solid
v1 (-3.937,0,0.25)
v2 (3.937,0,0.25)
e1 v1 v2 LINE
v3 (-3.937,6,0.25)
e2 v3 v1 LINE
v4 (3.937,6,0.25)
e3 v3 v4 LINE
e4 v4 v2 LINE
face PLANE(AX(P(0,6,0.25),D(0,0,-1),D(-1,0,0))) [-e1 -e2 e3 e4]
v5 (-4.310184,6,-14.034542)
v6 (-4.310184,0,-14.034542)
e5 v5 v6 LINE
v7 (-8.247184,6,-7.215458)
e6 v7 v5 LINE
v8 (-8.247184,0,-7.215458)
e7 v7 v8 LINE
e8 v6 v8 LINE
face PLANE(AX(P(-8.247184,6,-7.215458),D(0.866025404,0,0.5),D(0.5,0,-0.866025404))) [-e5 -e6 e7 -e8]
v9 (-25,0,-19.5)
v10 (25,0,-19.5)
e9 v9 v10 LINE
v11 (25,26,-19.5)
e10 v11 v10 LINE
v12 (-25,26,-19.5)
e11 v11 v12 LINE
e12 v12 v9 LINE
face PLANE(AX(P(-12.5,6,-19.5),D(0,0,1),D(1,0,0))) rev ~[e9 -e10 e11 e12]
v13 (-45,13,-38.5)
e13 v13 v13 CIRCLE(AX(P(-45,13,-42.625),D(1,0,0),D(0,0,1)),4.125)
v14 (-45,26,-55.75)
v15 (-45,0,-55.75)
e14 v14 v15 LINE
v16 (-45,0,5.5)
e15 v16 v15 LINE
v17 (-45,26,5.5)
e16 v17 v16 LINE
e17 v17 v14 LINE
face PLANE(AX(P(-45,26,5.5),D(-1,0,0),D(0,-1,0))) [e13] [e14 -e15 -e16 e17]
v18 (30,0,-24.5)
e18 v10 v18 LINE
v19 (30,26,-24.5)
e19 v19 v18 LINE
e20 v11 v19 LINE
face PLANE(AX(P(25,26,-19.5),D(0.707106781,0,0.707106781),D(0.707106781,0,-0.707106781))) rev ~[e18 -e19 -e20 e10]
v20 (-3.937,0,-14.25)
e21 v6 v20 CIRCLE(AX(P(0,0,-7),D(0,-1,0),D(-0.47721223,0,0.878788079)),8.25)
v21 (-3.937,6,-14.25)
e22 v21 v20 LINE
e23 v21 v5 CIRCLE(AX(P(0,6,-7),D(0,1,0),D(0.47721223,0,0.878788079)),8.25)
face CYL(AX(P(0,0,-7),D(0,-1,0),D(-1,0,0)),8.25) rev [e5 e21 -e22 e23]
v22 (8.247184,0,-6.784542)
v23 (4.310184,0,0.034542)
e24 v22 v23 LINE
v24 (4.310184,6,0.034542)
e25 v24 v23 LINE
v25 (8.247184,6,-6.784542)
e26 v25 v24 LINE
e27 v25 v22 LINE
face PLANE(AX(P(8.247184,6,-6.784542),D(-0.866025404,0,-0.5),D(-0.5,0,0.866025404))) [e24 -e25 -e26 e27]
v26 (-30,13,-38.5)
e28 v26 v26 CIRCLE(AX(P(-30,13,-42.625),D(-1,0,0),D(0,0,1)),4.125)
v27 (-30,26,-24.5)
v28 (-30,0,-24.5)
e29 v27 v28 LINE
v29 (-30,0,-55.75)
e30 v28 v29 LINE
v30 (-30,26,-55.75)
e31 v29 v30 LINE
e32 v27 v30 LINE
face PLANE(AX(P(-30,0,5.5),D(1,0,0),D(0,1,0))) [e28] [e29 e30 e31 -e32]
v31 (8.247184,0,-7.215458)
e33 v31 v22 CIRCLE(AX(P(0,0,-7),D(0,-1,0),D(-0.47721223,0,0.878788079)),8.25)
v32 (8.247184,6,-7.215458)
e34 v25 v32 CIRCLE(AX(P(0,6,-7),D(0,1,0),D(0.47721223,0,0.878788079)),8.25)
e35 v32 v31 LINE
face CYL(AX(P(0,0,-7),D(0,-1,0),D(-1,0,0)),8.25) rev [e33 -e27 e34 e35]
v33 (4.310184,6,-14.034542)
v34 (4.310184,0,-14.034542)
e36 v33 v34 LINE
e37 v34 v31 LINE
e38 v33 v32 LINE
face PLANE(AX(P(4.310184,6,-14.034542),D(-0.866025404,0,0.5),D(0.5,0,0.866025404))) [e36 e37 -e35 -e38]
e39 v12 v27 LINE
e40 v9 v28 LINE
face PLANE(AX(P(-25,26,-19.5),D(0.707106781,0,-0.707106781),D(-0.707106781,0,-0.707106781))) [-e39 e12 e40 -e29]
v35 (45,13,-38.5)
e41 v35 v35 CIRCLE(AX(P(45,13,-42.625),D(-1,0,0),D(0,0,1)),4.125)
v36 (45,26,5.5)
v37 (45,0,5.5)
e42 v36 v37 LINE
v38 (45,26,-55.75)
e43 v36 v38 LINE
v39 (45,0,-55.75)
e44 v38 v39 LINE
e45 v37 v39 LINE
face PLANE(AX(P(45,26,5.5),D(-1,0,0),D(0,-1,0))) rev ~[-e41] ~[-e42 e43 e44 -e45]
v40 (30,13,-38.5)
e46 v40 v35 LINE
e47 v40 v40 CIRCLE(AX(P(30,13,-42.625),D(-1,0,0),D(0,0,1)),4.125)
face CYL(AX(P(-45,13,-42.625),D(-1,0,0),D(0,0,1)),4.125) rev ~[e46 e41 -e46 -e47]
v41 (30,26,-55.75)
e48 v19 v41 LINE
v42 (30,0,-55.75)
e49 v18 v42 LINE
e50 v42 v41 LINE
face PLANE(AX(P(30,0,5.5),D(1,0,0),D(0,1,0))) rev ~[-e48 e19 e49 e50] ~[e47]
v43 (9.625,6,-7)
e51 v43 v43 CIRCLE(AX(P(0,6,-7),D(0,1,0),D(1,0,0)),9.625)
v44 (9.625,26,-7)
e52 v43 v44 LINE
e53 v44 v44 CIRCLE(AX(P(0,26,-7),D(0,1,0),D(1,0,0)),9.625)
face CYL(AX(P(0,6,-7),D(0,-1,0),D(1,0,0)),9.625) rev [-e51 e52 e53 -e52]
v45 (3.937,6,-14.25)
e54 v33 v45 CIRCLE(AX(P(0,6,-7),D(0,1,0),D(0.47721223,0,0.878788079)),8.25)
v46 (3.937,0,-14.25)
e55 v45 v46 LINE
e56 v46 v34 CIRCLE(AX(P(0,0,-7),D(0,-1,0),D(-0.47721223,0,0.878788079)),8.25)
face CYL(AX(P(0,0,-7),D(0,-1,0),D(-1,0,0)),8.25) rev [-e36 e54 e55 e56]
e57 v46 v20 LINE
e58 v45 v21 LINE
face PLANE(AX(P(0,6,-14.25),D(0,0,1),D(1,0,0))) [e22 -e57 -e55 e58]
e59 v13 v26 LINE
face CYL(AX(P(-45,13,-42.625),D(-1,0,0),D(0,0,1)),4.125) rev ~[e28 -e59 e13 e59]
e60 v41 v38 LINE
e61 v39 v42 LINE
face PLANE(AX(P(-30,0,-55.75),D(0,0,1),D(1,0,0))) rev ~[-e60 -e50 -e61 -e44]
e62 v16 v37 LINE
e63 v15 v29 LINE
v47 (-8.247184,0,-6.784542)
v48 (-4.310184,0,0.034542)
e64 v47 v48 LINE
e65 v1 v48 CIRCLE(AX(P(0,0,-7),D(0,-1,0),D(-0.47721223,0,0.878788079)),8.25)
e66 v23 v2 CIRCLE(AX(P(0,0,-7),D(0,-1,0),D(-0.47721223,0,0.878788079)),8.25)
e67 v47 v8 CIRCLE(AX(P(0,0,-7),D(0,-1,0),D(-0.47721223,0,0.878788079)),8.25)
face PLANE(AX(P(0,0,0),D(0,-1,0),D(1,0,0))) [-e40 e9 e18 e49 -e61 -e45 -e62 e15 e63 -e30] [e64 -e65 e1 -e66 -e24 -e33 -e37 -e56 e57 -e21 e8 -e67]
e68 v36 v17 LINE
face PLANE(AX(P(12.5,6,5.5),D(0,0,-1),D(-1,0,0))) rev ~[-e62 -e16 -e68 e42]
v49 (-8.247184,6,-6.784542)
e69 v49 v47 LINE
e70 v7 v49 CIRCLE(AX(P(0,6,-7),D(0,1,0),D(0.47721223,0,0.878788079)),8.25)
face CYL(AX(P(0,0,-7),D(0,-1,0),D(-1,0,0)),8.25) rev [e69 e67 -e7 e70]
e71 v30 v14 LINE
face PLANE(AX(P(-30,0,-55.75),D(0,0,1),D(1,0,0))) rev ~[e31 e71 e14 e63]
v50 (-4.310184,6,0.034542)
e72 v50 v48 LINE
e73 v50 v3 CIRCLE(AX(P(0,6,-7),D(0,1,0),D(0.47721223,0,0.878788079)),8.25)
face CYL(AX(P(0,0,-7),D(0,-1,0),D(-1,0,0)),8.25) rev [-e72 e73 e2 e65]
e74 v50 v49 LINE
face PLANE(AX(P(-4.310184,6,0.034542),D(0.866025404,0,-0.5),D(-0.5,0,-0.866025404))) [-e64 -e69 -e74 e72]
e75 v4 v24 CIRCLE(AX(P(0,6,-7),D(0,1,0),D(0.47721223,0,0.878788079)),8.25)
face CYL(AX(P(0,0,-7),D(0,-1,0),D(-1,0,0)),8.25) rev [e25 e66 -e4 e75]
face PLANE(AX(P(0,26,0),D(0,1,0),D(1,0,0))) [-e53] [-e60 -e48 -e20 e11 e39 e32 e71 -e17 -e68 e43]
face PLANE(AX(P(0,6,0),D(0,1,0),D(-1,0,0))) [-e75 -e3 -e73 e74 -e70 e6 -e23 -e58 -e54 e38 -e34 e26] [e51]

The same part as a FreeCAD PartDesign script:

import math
import FreeCAD as App
import Part
import Sketcher
Q = App.Units.Quantity

doc = App.newDocument("Part")
body = doc.addObject("PartDesign::Body", "Body")

sketch1 = doc.addObject("Sketcher::SketchObject", "Sketch")
body.addObject(sketch1)
sketch1.AttachmentSupport = (doc.XZ_Plane, [""])
sketch1.MapMode = "FlatFace"
sketch1.addGeometry([
    Part.Circle(App.Vector(0, -7, 0), App.Vector(0, 0, 1), 10),
    Part.Circle(App.Vector(0, -7, 0), App.Vector(0, 0, 1), 8),
], False)
sketch1.addConstraint([
    Sketcher.Constraint("Coincident", 1, 3, 0, 3),
    Sketcher.Constraint("PointOnObject", 0, 3, -2),
    Sketcher.Constraint("Diameter", 0, Q("21 mm")),
    Sketcher.Constraint("Diameter", 1, Q("16.5 mm")),
    Sketcher.Constraint("DistanceY", 0, 3, -1, 1, Q("7 mm")),
])
pad1 = doc.addObject("PartDesign::Pad", "Pad")
body.addObject(pad1)
pad1.Profile = sketch1
pad1.Length = 6
pad1.Reversed = True

sketch2 = doc.addObject("Sketcher::SketchObject", "Sketch001")
body.addObject(sketch2)
sketch2.AttachmentSupport = (doc.XZ_Plane, [""])
sketch2.MapMode = "FlatFace"
sketch2.AttachmentOffset = App.Placement(App.Vector(0, 0, -6), App.Rotation())
sketch2.addGeometry([
    Part.LineSegment(App.Vector(0, 4, 0), App.Vector(10, 4, 0)),
    Part.LineSegment(App.Vector(10, 4, 0), App.Vector(10, -7, 0)),
    Part.ArcOfCircle(Part.Circle(App.Vector(0, -7, 0), App.Vector(0, 0, 1), 10), math.radians(0), math.radians(90)),
    Part.LineSegment(App.Vector(-10, 4, 0), App.Vector(0, 4, 0)),
    Part.ArcOfCircle(Part.Circle(App.Vector(0, -7, 0), App.Vector(0, 0, 1), 10), math.radians(90), math.radians(180)),
    Part.LineSegment(App.Vector(-10, -7, 0), App.Vector(-10, 4, 0)),
    Part.ArcOfCircle(Part.Circle(App.Vector(0, -7, 0), App.Vector(0, 0, 1), 10), math.radians(-90), math.radians(0)),
    Part.LineSegment(App.Vector(10, -7, 0), App.Vector(10, -18, 0)),
    Part.LineSegment(App.Vector(10, -18, 0), App.Vector(0, -18, 0)),
    Part.LineSegment(App.Vector(-10, -18, 0), App.Vector(-10, -7, 0)),
    Part.ArcOfCircle(Part.Circle(App.Vector(0, -7, 0), App.Vector(0, 0, 1), 10), math.radians(-180), math.radians(-90)),
    Part.LineSegment(App.Vector(0, -18, 0), App.Vector(-10, -18, 0)),
], False)
sketch2.addConstraint([
    Sketcher.Constraint("Coincident", 0, 2, 1, 1),
    Sketcher.Constraint("Tangent", 1, 2, 2, 1),
    Sketcher.Constraint("Tangent", 2, 2, 0, 1),
    Sketcher.Constraint("Tangent", 3, 2, 4, 1),
    Sketcher.Constraint("Tangent", 4, 2, 5, 1),
    Sketcher.Constraint("Coincident", 5, 2, 3, 1),
    Sketcher.Constraint("Tangent", 6, 2, 7, 1),
    Sketcher.Constraint("Coincident", 7, 2, 8, 1),
    Sketcher.Constraint("Tangent", 8, 2, 6, 1),
    Sketcher.Constraint("Tangent", 9, 2, 10, 1),
    Sketcher.Constraint("Tangent", 10, 2, 11, 1),
    Sketcher.Constraint("Coincident", 11, 2, 9, 1),
    Sketcher.Constraint("Horizontal", 0),
    Sketcher.Constraint("Vertical", 1),
    Sketcher.Constraint("Horizontal", 3),
    Sketcher.Constraint("Vertical", 5),
    Sketcher.Constraint("Vertical", 7),
    Sketcher.Constraint("Horizontal", 8),
    Sketcher.Constraint("Vertical", 9),
    Sketcher.Constraint("Horizontal", 11),
    Sketcher.Constraint("Coincident", 4, 3, 2, 3),
    Sketcher.Constraint("Coincident", 6, 3, 2, 3),
    Sketcher.Constraint("Coincident", 10, 3, 2, 3),
    Sketcher.Constraint("Equal", 2, 4),
    Sketcher.Constraint("Equal", 4, 6),
    Sketcher.Constraint("Equal", 6, 10),
    Sketcher.Constraint("PointOnObject", 2, 3, -2),
    Sketcher.Constraint("Radius", 2, Q("10.5 mm")),
    Sketcher.Constraint("DistanceY", 2, 3, -1, 1, Q("7 mm")),
])
pad2 = doc.addObject("PartDesign::Pad", "Pad001")
body.addObject(pad2)
pad2.Profile = sketch2
pad2.Length = 6

sketch3 = doc.addObject("Sketcher::SketchObject", "Sketch002")
body.addObject(sketch3)
sketch3.AttachmentSupport = (doc.XZ_Plane, [""])
sketch3.MapMode = "FlatFace"
sketch3.AttachmentOffset = App.Placement(App.Vector(0, 0, -6), App.Rotation())
sketch3.addGeometry([
    Part.LineSegment(App.Vector(4, 0, 0), App.Vector(-4, 0, 0)),
    Part.ArcOfCircle(Part.Circle(App.Vector(0, -7, 0), App.Vector(0, 0, 1), 8), math.radians(61), math.radians(119)),
], False)
sketch3.addConstraint([
    Sketcher.Constraint("Coincident", 0, 1, 1, 1),
    Sketcher.Constraint("Coincident", 1, 2, 0, 2),
    Sketcher.Constraint("Horizontal", 0),
    Sketcher.Constraint("PointOnObject", 1, 3, -2),
    Sketcher.Constraint("Radius", 1, Q("8.25 mm")),
    Sketcher.Constraint("DistanceY", 1, 3, 0, 1, Q("7.25 mm")),
    Sketcher.Constraint("DistanceY", 1, 3, -1, 1, Q("7 mm")),
])
pad3 = doc.addObject("PartDesign::Pad", "Pad002")
body.addObject(pad3)
pad3.Profile = sketch3
pad3.Length = 6
doc.recompute()

datumline = doc.addObject("PartDesign::Line", "DatumLine")
body.addObject(datumline)
datumline.Placement = App.Placement(App.Vector(0, 0, -7), App.Rotation(App.Vector(0, 0, 1), App.Vector(0, 1, 0)))
polarpattern = doc.addObject("PartDesign::PolarPattern", "PolarPattern")
body.addObject(polarpattern)
polarpattern.Originals = [pad3]
polarpattern.Axis = (datumline, [""])
polarpattern.Angle = 360
polarpattern.Occurrences = 6
body.Tip = polarpattern

sketch4 = doc.addObject("Sketcher::SketchObject", "Sketch003")
body.addObject(sketch4)
sketch4.AttachmentSupport = (doc.XZ_Plane, [""])
sketch4.MapMode = "FlatFace"
sketch4.AttachmentOffset = App.Placement(App.Vector(0, 0, -6), App.Rotation())
sketch4.addGeometry([
    Part.LineSegment(App.Vector(12, 6, 0), App.Vector(12, -20, 0)),
    Part.LineSegment(App.Vector(12, -20, 0), App.Vector(-12, -20, 0)),
    Part.LineSegment(App.Vector(-12, -20, 0), App.Vector(-12, 6, 0)),
    Part.LineSegment(App.Vector(-12, 6, 0), App.Vector(12, 6, 0)),
    Part.Circle(App.Vector(0, -7, 0), App.Vector(0, 0, 1), 10),
], False)
sketch4.addConstraint([
    Sketcher.Constraint("Coincident", 0, 2, 1, 1),
    Sketcher.Constraint("Coincident", 1, 2, 2, 1),
    Sketcher.Constraint("Coincident", 2, 2, 3, 1),
    Sketcher.Constraint("Coincident", 3, 2, 0, 1),
    Sketcher.Constraint("Vertical", 0),
    Sketcher.Constraint("Horizontal", 1),
    Sketcher.Constraint("Vertical", 2),
    Sketcher.Constraint("Horizontal", 3),
    Sketcher.Constraint("PointOnObject", 4, 3, -2),
    Sketcher.Constraint("Equal", 3, 0),
    Sketcher.Constraint("Diameter", 4, Q("19.25 mm")),
    Sketcher.Constraint("DistanceX", 1, 2, 1, 1, Q("25 mm")),
    Sketcher.Constraint("DistanceY", 4, 3, -1, 1, Q("7 mm")),
    Sketcher.Constraint("DistanceX", -1, 1, 0, 2, Q("12.5 mm")),
    Sketcher.Constraint("DistanceY", 0, 2, -1, 1, Q("19.5 mm")),
])
pad4 = doc.addObject("PartDesign::Pad", "Pad003")
body.addObject(pad4)
pad4.Profile = sketch4
pad4.Length = 20
pad4.Reversed = True

sketch5 = doc.addObject("Sketcher::SketchObject", "Sketch004")
body.addObject(sketch5)
sketch5.AttachmentSupport = (doc.XZ_Plane, [""])
sketch5.MapMode = "FlatFace"
sketch5.AttachmentOffset = App.Placement(App.Vector(0, 0, -6), App.Rotation())
sketch5.addGeometry([
    Part.LineSegment(App.Vector(-12, 6, 0), App.Vector(-12, -20, 0)),
    Part.LineSegment(App.Vector(-12, -20, 0), App.Vector(12, -20, 0)),
    Part.LineSegment(App.Vector(12, -20, 0), App.Vector(12, 6, 0)),
    Part.LineSegment(App.Vector(12, 6, 0), App.Vector(-12, 6, 0)),
    Part.LineSegment(App.Vector(10, -18, 0), App.Vector(-10, -18, 0)),
    Part.LineSegment(App.Vector(-10, -18, 0), App.Vector(-10, 4, 0)),
    Part.LineSegment(App.Vector(-10, 4, 0), App.Vector(10, 4, 0)),
    Part.LineSegment(App.Vector(10, 4, 0), App.Vector(10, -18, 0)),
], False)
sketch5.addConstraint([
    Sketcher.Constraint("Coincident", 0, 2, 1, 1),
    Sketcher.Constraint("Coincident", 1, 2, 2, 1),
    Sketcher.Constraint("Coincident", 2, 2, 3, 1),
    Sketcher.Constraint("Coincident", 3, 2, 0, 1),
    Sketcher.Constraint("Coincident", 4, 2, 5, 1),
    Sketcher.Constraint("Coincident", 5, 2, 6, 1),
    Sketcher.Constraint("Coincident", 6, 2, 7, 1),
    Sketcher.Constraint("Coincident", 7, 2, 4, 1),
    Sketcher.Constraint("Vertical", 0),
    Sketcher.Constraint("Horizontal", 1),
    Sketcher.Constraint("Vertical", 2),
    Sketcher.Constraint("Horizontal", 3),
    Sketcher.Constraint("Horizontal", 4),
    Sketcher.Constraint("Vertical", 5),
    Sketcher.Constraint("Horizontal", 6),
    Sketcher.Constraint("Vertical", 7),
    Sketcher.Constraint("Equal", 3, 0),
    Sketcher.Constraint("Equal", 6, 5),
    Sketcher.Constraint("DistanceX", 1, 1, 1, 2, Q("25 mm")),
    Sketcher.Constraint("DistanceX", 4, 2, 4, 1, Q("21 mm")),
    Sketcher.Constraint("DistanceX", 0, 2, 4, 2, Q("2 mm")),
    Sketcher.Constraint("DistanceY", 0, 2, 4, 2, Q("2 mm")),
    Sketcher.Constraint("DistanceX", 0, 2, -1, 1, Q("12.5 mm")),
    Sketcher.Constraint("DistanceY", 0, 2, -1, 1, Q("19.5 mm")),
])
pad5 = doc.addObject("PartDesign::Pad", "Pad004")
body.addObject(pad5)
pad5.Profile = sketch5
pad5.Length = 6

sketch6 = doc.addObject("Sketcher::SketchObject", "Sketch005")
body.addObject(sketch6)
sketch6.AttachmentSupport = (doc.XY_Plane, [""])
sketch6.MapMode = "FlatFace"
sketch6.AttachmentOffset = App.Placement(App.Vector(0, 0, 5.5), App.Rotation())
sketch6.addGeometry([
    Part.LineSegment(App.Vector(30, 26, 0), App.Vector(12, 26, 0)),
    Part.LineSegment(App.Vector(12, 26, 0), App.Vector(12, 0, 0)),
    Part.LineSegment(App.Vector(12, 0, 0), App.Vector(30, 0, 0)),
    Part.LineSegment(App.Vector(30, 0, 0), App.Vector(30, 26, 0)),
    Part.LineSegment(App.Vector(-12, 0, 0), App.Vector(-12, 26, 0)),
    Part.LineSegment(App.Vector(-12, 26, 0), App.Vector(-30, 26, 0)),
    Part.LineSegment(App.Vector(-30, 26, 0), App.Vector(-30, 0, 0)),
    Part.LineSegment(App.Vector(-30, 0, 0), App.Vector(-12, 0, 0)),
], False)
sketch6.addConstraint([
    Sketcher.Constraint("Coincident", 0, 2, 1, 1),
    Sketcher.Constraint("Coincident", 1, 2, 2, 1),
    Sketcher.Constraint("Coincident", 2, 2, 3, 1),
    Sketcher.Constraint("Coincident", 3, 2, 0, 1),
    Sketcher.Constraint("Coincident", 4, 2, 5, 1),
    Sketcher.Constraint("Coincident", 5, 2, 6, 1),
    Sketcher.Constraint("Coincident", 6, 2, 7, 1),
    Sketcher.Constraint("Coincident", 7, 2, 4, 1),
    Sketcher.Constraint("Horizontal", 0),
    Sketcher.Constraint("Vertical", 1),
    Sketcher.Constraint("Horizontal", 2),
    Sketcher.Constraint("Vertical", 3),
    Sketcher.Constraint("Vertical", 4),
    Sketcher.Constraint("Horizontal", 5),
    Sketcher.Constraint("Vertical", 6),
    Sketcher.Constraint("Horizontal", 7),
    Sketcher.Constraint("Symmetric", 2, 2, 6, 2, -1, 1),
    Sketcher.Constraint("Symmetric", 0, 2, 4, 2, -2),
    Sketcher.Constraint("PointOnObject", 1, 2, -1),
    Sketcher.Constraint("DistanceX", 0, 2, 0, 1, Q("17.5 mm")),
    Sketcher.Constraint("DistanceY", 1, 2, 1, 1, Q("26 mm")),
    Sketcher.Constraint("DistanceX", -1, 1, 2, 2, Q("30 mm")),
])
pad6 = doc.addObject("PartDesign::Pad", "Pad005")
body.addObject(pad6)
pad6.Profile = sketch6
pad6.Length = 25
pad6.Reversed = True

sketch7 = doc.addObject("Sketcher::SketchObject", "Sketch006")
body.addObject(sketch7)
sketch7.AttachmentSupport = (doc.XY_Plane, [""])
sketch7.MapMode = "FlatFace"
sketch7.AttachmentOffset = App.Placement(App.Vector(0, 0, 5.5), App.Rotation())
sketch7.addGeometry([
    Part.LineSegment(App.Vector(-30, 0, 0), App.Vector(-30, 26, 0)),
    Part.LineSegment(App.Vector(-30, 26, 0), App.Vector(-45, 26, 0)),
    Part.LineSegment(App.Vector(-45, 26, 0), App.Vector(-45, 0, 0)),
    Part.LineSegment(App.Vector(-45, 0, 0), App.Vector(-30, 0, 0)),
    Part.LineSegment(App.Vector(45, 26, 0), App.Vector(30, 26, 0)),
    Part.LineSegment(App.Vector(30, 26, 0), App.Vector(30, 0, 0)),
    Part.LineSegment(App.Vector(30, 0, 0), App.Vector(45, 0, 0)),
    Part.LineSegment(App.Vector(45, 0, 0), App.Vector(45, 26, 0)),
], False)
sketch7.addConstraint([
    Sketcher.Constraint("Coincident", 0, 2, 1, 1),
    Sketcher.Constraint("Coincident", 1, 2, 2, 1),
    Sketcher.Constraint("Coincident", 2, 2, 3, 1),
    Sketcher.Constraint("Coincident", 3, 2, 0, 1),
    Sketcher.Constraint("Coincident", 4, 2, 5, 1),
    Sketcher.Constraint("Coincident", 5, 2, 6, 1),
    Sketcher.Constraint("Coincident", 6, 2, 7, 1),
    Sketcher.Constraint("Coincident", 7, 2, 4, 1),
    Sketcher.Constraint("Vertical", 0),
    Sketcher.Constraint("Horizontal", 1),
    Sketcher.Constraint("Vertical", 2),
    Sketcher.Constraint("Horizontal", 3),
    Sketcher.Constraint("Horizontal", 4),
    Sketcher.Constraint("Vertical", 5),
    Sketcher.Constraint("Horizontal", 6),
    Sketcher.Constraint("Vertical", 7),
    Sketcher.Constraint("Symmetric", 3, 2, 5, 2, -1, 1),
    Sketcher.Constraint("Symmetric", 2, 2, 6, 2, -2),
    Sketcher.Constraint("Horizontal", 1, 2, 4, 2),
    Sketcher.Constraint("DistanceX", 1, 2, 1, 1, Q("15 mm")),
    Sketcher.Constraint("DistanceY", 0, 1, 0, 2, Q("26 mm")),
    Sketcher.Constraint("DistanceX", 0, 2, -1, 1, Q("30 mm")),
])
pad7 = doc.addObject("PartDesign::Pad", "Pad006")
body.addObject(pad7)
pad7.Profile = sketch7
pad7.Length = 61.25
pad7.Reversed = True

sketch8 = doc.addObject("Sketcher::SketchObject", "Sketch007")
body.addObject(sketch8)
sketch8.AttachmentSupport = (doc.YZ_Plane, [""])
sketch8.MapMode = "FlatFace"
sketch8.AttachmentOffset = App.Placement(App.Vector(0, 0, -45), App.Rotation())
sketch8.addGeometry(Part.Circle(App.Vector(13, -42.6, 0), App.Vector(0, 0, 1), 4.1), False)
sketch8.addConstraint([
    Sketcher.Constraint("Diameter", 0, Q("8.25 mm")),
    Sketcher.Constraint("DistanceX", -1, 1, 0, 3, Q("13 mm")),
    Sketcher.Constraint("DistanceY", 0, 3, -1, 1, Q("42.625 mm")),
])
pocket1 = doc.addObject("PartDesign::Pocket", "Pocket")
body.addObject(pocket1)
pocket1.Profile = sketch8
pocket1.Type = "ThroughAll"
pocket1.Reversed = True

sketch9 = doc.addObject("Sketcher::SketchObject", "Sketch008")
body.addObject(sketch9)
sketch9.AttachmentSupport = (doc.XZ_Plane, [""])
sketch9.MapMode = "FlatFace"
sketch9.AttachmentOffset = App.Placement(App.Vector(0, 0, -26), App.Rotation())
sketch9.addGeometry([
    Part.LineSegment(App.Vector(25, -20, 0), App.Vector(30, -20, 0)),
    Part.LineSegment(App.Vector(30, -20, 0), App.Vector(30, -24, 0)),
    Part.LineSegment(App.Vector(30, -24, 0), App.Vector(25, -20, 0)),
    Part.LineSegment(App.Vector(-30, -20, 0), App.Vector(-25, -20, 0)),
    Part.LineSegment(App.Vector(-25, -20, 0), App.Vector(-30, -24, 0)),
    Part.LineSegment(App.Vector(-30, -24, 0), App.Vector(-30, -20, 0)),
], False)
sketch9.addConstraint([
    Sketcher.Constraint("Coincident", 0, 2, 1, 1),
    Sketcher.Constraint("Coincident", 1, 2, 2, 1),
    Sketcher.Constraint("Coincident", 2, 2, 0, 1),
    Sketcher.Constraint("Coincident", 3, 2, 4, 1),
    Sketcher.Constraint("Coincident", 4, 2, 5, 1),
    Sketcher.Constraint("Coincident", 5, 2, 3, 1),
    Sketcher.Constraint("Horizontal", 0),
    Sketcher.Constraint("Vertical", 1),
    Sketcher.Constraint("Horizontal", 3),
    Sketcher.Constraint("Vertical", 5),
    Sketcher.Constraint("Symmetric", 2, 2, 3, 2, -2),
    Sketcher.Constraint("Symmetric", 1, 2, 4, 2, -2),
    Sketcher.Constraint("Perpendicular", 2, 4),
    Sketcher.Constraint("DistanceX", 0, 1, 0, 2, Q("5 mm")),
    Sketcher.Constraint("DistanceX", -1, 1, 0, 2, Q("30 mm")),
    Sketcher.Constraint("DistanceY", 0, 2, -1, 1, Q("19.5 mm")),
])
pad8 = doc.addObject("PartDesign::Pad", "Pad007")
body.addObject(pad8)
pad8.Profile = sketch9
pad8.Length = 26

doc.recompute()
